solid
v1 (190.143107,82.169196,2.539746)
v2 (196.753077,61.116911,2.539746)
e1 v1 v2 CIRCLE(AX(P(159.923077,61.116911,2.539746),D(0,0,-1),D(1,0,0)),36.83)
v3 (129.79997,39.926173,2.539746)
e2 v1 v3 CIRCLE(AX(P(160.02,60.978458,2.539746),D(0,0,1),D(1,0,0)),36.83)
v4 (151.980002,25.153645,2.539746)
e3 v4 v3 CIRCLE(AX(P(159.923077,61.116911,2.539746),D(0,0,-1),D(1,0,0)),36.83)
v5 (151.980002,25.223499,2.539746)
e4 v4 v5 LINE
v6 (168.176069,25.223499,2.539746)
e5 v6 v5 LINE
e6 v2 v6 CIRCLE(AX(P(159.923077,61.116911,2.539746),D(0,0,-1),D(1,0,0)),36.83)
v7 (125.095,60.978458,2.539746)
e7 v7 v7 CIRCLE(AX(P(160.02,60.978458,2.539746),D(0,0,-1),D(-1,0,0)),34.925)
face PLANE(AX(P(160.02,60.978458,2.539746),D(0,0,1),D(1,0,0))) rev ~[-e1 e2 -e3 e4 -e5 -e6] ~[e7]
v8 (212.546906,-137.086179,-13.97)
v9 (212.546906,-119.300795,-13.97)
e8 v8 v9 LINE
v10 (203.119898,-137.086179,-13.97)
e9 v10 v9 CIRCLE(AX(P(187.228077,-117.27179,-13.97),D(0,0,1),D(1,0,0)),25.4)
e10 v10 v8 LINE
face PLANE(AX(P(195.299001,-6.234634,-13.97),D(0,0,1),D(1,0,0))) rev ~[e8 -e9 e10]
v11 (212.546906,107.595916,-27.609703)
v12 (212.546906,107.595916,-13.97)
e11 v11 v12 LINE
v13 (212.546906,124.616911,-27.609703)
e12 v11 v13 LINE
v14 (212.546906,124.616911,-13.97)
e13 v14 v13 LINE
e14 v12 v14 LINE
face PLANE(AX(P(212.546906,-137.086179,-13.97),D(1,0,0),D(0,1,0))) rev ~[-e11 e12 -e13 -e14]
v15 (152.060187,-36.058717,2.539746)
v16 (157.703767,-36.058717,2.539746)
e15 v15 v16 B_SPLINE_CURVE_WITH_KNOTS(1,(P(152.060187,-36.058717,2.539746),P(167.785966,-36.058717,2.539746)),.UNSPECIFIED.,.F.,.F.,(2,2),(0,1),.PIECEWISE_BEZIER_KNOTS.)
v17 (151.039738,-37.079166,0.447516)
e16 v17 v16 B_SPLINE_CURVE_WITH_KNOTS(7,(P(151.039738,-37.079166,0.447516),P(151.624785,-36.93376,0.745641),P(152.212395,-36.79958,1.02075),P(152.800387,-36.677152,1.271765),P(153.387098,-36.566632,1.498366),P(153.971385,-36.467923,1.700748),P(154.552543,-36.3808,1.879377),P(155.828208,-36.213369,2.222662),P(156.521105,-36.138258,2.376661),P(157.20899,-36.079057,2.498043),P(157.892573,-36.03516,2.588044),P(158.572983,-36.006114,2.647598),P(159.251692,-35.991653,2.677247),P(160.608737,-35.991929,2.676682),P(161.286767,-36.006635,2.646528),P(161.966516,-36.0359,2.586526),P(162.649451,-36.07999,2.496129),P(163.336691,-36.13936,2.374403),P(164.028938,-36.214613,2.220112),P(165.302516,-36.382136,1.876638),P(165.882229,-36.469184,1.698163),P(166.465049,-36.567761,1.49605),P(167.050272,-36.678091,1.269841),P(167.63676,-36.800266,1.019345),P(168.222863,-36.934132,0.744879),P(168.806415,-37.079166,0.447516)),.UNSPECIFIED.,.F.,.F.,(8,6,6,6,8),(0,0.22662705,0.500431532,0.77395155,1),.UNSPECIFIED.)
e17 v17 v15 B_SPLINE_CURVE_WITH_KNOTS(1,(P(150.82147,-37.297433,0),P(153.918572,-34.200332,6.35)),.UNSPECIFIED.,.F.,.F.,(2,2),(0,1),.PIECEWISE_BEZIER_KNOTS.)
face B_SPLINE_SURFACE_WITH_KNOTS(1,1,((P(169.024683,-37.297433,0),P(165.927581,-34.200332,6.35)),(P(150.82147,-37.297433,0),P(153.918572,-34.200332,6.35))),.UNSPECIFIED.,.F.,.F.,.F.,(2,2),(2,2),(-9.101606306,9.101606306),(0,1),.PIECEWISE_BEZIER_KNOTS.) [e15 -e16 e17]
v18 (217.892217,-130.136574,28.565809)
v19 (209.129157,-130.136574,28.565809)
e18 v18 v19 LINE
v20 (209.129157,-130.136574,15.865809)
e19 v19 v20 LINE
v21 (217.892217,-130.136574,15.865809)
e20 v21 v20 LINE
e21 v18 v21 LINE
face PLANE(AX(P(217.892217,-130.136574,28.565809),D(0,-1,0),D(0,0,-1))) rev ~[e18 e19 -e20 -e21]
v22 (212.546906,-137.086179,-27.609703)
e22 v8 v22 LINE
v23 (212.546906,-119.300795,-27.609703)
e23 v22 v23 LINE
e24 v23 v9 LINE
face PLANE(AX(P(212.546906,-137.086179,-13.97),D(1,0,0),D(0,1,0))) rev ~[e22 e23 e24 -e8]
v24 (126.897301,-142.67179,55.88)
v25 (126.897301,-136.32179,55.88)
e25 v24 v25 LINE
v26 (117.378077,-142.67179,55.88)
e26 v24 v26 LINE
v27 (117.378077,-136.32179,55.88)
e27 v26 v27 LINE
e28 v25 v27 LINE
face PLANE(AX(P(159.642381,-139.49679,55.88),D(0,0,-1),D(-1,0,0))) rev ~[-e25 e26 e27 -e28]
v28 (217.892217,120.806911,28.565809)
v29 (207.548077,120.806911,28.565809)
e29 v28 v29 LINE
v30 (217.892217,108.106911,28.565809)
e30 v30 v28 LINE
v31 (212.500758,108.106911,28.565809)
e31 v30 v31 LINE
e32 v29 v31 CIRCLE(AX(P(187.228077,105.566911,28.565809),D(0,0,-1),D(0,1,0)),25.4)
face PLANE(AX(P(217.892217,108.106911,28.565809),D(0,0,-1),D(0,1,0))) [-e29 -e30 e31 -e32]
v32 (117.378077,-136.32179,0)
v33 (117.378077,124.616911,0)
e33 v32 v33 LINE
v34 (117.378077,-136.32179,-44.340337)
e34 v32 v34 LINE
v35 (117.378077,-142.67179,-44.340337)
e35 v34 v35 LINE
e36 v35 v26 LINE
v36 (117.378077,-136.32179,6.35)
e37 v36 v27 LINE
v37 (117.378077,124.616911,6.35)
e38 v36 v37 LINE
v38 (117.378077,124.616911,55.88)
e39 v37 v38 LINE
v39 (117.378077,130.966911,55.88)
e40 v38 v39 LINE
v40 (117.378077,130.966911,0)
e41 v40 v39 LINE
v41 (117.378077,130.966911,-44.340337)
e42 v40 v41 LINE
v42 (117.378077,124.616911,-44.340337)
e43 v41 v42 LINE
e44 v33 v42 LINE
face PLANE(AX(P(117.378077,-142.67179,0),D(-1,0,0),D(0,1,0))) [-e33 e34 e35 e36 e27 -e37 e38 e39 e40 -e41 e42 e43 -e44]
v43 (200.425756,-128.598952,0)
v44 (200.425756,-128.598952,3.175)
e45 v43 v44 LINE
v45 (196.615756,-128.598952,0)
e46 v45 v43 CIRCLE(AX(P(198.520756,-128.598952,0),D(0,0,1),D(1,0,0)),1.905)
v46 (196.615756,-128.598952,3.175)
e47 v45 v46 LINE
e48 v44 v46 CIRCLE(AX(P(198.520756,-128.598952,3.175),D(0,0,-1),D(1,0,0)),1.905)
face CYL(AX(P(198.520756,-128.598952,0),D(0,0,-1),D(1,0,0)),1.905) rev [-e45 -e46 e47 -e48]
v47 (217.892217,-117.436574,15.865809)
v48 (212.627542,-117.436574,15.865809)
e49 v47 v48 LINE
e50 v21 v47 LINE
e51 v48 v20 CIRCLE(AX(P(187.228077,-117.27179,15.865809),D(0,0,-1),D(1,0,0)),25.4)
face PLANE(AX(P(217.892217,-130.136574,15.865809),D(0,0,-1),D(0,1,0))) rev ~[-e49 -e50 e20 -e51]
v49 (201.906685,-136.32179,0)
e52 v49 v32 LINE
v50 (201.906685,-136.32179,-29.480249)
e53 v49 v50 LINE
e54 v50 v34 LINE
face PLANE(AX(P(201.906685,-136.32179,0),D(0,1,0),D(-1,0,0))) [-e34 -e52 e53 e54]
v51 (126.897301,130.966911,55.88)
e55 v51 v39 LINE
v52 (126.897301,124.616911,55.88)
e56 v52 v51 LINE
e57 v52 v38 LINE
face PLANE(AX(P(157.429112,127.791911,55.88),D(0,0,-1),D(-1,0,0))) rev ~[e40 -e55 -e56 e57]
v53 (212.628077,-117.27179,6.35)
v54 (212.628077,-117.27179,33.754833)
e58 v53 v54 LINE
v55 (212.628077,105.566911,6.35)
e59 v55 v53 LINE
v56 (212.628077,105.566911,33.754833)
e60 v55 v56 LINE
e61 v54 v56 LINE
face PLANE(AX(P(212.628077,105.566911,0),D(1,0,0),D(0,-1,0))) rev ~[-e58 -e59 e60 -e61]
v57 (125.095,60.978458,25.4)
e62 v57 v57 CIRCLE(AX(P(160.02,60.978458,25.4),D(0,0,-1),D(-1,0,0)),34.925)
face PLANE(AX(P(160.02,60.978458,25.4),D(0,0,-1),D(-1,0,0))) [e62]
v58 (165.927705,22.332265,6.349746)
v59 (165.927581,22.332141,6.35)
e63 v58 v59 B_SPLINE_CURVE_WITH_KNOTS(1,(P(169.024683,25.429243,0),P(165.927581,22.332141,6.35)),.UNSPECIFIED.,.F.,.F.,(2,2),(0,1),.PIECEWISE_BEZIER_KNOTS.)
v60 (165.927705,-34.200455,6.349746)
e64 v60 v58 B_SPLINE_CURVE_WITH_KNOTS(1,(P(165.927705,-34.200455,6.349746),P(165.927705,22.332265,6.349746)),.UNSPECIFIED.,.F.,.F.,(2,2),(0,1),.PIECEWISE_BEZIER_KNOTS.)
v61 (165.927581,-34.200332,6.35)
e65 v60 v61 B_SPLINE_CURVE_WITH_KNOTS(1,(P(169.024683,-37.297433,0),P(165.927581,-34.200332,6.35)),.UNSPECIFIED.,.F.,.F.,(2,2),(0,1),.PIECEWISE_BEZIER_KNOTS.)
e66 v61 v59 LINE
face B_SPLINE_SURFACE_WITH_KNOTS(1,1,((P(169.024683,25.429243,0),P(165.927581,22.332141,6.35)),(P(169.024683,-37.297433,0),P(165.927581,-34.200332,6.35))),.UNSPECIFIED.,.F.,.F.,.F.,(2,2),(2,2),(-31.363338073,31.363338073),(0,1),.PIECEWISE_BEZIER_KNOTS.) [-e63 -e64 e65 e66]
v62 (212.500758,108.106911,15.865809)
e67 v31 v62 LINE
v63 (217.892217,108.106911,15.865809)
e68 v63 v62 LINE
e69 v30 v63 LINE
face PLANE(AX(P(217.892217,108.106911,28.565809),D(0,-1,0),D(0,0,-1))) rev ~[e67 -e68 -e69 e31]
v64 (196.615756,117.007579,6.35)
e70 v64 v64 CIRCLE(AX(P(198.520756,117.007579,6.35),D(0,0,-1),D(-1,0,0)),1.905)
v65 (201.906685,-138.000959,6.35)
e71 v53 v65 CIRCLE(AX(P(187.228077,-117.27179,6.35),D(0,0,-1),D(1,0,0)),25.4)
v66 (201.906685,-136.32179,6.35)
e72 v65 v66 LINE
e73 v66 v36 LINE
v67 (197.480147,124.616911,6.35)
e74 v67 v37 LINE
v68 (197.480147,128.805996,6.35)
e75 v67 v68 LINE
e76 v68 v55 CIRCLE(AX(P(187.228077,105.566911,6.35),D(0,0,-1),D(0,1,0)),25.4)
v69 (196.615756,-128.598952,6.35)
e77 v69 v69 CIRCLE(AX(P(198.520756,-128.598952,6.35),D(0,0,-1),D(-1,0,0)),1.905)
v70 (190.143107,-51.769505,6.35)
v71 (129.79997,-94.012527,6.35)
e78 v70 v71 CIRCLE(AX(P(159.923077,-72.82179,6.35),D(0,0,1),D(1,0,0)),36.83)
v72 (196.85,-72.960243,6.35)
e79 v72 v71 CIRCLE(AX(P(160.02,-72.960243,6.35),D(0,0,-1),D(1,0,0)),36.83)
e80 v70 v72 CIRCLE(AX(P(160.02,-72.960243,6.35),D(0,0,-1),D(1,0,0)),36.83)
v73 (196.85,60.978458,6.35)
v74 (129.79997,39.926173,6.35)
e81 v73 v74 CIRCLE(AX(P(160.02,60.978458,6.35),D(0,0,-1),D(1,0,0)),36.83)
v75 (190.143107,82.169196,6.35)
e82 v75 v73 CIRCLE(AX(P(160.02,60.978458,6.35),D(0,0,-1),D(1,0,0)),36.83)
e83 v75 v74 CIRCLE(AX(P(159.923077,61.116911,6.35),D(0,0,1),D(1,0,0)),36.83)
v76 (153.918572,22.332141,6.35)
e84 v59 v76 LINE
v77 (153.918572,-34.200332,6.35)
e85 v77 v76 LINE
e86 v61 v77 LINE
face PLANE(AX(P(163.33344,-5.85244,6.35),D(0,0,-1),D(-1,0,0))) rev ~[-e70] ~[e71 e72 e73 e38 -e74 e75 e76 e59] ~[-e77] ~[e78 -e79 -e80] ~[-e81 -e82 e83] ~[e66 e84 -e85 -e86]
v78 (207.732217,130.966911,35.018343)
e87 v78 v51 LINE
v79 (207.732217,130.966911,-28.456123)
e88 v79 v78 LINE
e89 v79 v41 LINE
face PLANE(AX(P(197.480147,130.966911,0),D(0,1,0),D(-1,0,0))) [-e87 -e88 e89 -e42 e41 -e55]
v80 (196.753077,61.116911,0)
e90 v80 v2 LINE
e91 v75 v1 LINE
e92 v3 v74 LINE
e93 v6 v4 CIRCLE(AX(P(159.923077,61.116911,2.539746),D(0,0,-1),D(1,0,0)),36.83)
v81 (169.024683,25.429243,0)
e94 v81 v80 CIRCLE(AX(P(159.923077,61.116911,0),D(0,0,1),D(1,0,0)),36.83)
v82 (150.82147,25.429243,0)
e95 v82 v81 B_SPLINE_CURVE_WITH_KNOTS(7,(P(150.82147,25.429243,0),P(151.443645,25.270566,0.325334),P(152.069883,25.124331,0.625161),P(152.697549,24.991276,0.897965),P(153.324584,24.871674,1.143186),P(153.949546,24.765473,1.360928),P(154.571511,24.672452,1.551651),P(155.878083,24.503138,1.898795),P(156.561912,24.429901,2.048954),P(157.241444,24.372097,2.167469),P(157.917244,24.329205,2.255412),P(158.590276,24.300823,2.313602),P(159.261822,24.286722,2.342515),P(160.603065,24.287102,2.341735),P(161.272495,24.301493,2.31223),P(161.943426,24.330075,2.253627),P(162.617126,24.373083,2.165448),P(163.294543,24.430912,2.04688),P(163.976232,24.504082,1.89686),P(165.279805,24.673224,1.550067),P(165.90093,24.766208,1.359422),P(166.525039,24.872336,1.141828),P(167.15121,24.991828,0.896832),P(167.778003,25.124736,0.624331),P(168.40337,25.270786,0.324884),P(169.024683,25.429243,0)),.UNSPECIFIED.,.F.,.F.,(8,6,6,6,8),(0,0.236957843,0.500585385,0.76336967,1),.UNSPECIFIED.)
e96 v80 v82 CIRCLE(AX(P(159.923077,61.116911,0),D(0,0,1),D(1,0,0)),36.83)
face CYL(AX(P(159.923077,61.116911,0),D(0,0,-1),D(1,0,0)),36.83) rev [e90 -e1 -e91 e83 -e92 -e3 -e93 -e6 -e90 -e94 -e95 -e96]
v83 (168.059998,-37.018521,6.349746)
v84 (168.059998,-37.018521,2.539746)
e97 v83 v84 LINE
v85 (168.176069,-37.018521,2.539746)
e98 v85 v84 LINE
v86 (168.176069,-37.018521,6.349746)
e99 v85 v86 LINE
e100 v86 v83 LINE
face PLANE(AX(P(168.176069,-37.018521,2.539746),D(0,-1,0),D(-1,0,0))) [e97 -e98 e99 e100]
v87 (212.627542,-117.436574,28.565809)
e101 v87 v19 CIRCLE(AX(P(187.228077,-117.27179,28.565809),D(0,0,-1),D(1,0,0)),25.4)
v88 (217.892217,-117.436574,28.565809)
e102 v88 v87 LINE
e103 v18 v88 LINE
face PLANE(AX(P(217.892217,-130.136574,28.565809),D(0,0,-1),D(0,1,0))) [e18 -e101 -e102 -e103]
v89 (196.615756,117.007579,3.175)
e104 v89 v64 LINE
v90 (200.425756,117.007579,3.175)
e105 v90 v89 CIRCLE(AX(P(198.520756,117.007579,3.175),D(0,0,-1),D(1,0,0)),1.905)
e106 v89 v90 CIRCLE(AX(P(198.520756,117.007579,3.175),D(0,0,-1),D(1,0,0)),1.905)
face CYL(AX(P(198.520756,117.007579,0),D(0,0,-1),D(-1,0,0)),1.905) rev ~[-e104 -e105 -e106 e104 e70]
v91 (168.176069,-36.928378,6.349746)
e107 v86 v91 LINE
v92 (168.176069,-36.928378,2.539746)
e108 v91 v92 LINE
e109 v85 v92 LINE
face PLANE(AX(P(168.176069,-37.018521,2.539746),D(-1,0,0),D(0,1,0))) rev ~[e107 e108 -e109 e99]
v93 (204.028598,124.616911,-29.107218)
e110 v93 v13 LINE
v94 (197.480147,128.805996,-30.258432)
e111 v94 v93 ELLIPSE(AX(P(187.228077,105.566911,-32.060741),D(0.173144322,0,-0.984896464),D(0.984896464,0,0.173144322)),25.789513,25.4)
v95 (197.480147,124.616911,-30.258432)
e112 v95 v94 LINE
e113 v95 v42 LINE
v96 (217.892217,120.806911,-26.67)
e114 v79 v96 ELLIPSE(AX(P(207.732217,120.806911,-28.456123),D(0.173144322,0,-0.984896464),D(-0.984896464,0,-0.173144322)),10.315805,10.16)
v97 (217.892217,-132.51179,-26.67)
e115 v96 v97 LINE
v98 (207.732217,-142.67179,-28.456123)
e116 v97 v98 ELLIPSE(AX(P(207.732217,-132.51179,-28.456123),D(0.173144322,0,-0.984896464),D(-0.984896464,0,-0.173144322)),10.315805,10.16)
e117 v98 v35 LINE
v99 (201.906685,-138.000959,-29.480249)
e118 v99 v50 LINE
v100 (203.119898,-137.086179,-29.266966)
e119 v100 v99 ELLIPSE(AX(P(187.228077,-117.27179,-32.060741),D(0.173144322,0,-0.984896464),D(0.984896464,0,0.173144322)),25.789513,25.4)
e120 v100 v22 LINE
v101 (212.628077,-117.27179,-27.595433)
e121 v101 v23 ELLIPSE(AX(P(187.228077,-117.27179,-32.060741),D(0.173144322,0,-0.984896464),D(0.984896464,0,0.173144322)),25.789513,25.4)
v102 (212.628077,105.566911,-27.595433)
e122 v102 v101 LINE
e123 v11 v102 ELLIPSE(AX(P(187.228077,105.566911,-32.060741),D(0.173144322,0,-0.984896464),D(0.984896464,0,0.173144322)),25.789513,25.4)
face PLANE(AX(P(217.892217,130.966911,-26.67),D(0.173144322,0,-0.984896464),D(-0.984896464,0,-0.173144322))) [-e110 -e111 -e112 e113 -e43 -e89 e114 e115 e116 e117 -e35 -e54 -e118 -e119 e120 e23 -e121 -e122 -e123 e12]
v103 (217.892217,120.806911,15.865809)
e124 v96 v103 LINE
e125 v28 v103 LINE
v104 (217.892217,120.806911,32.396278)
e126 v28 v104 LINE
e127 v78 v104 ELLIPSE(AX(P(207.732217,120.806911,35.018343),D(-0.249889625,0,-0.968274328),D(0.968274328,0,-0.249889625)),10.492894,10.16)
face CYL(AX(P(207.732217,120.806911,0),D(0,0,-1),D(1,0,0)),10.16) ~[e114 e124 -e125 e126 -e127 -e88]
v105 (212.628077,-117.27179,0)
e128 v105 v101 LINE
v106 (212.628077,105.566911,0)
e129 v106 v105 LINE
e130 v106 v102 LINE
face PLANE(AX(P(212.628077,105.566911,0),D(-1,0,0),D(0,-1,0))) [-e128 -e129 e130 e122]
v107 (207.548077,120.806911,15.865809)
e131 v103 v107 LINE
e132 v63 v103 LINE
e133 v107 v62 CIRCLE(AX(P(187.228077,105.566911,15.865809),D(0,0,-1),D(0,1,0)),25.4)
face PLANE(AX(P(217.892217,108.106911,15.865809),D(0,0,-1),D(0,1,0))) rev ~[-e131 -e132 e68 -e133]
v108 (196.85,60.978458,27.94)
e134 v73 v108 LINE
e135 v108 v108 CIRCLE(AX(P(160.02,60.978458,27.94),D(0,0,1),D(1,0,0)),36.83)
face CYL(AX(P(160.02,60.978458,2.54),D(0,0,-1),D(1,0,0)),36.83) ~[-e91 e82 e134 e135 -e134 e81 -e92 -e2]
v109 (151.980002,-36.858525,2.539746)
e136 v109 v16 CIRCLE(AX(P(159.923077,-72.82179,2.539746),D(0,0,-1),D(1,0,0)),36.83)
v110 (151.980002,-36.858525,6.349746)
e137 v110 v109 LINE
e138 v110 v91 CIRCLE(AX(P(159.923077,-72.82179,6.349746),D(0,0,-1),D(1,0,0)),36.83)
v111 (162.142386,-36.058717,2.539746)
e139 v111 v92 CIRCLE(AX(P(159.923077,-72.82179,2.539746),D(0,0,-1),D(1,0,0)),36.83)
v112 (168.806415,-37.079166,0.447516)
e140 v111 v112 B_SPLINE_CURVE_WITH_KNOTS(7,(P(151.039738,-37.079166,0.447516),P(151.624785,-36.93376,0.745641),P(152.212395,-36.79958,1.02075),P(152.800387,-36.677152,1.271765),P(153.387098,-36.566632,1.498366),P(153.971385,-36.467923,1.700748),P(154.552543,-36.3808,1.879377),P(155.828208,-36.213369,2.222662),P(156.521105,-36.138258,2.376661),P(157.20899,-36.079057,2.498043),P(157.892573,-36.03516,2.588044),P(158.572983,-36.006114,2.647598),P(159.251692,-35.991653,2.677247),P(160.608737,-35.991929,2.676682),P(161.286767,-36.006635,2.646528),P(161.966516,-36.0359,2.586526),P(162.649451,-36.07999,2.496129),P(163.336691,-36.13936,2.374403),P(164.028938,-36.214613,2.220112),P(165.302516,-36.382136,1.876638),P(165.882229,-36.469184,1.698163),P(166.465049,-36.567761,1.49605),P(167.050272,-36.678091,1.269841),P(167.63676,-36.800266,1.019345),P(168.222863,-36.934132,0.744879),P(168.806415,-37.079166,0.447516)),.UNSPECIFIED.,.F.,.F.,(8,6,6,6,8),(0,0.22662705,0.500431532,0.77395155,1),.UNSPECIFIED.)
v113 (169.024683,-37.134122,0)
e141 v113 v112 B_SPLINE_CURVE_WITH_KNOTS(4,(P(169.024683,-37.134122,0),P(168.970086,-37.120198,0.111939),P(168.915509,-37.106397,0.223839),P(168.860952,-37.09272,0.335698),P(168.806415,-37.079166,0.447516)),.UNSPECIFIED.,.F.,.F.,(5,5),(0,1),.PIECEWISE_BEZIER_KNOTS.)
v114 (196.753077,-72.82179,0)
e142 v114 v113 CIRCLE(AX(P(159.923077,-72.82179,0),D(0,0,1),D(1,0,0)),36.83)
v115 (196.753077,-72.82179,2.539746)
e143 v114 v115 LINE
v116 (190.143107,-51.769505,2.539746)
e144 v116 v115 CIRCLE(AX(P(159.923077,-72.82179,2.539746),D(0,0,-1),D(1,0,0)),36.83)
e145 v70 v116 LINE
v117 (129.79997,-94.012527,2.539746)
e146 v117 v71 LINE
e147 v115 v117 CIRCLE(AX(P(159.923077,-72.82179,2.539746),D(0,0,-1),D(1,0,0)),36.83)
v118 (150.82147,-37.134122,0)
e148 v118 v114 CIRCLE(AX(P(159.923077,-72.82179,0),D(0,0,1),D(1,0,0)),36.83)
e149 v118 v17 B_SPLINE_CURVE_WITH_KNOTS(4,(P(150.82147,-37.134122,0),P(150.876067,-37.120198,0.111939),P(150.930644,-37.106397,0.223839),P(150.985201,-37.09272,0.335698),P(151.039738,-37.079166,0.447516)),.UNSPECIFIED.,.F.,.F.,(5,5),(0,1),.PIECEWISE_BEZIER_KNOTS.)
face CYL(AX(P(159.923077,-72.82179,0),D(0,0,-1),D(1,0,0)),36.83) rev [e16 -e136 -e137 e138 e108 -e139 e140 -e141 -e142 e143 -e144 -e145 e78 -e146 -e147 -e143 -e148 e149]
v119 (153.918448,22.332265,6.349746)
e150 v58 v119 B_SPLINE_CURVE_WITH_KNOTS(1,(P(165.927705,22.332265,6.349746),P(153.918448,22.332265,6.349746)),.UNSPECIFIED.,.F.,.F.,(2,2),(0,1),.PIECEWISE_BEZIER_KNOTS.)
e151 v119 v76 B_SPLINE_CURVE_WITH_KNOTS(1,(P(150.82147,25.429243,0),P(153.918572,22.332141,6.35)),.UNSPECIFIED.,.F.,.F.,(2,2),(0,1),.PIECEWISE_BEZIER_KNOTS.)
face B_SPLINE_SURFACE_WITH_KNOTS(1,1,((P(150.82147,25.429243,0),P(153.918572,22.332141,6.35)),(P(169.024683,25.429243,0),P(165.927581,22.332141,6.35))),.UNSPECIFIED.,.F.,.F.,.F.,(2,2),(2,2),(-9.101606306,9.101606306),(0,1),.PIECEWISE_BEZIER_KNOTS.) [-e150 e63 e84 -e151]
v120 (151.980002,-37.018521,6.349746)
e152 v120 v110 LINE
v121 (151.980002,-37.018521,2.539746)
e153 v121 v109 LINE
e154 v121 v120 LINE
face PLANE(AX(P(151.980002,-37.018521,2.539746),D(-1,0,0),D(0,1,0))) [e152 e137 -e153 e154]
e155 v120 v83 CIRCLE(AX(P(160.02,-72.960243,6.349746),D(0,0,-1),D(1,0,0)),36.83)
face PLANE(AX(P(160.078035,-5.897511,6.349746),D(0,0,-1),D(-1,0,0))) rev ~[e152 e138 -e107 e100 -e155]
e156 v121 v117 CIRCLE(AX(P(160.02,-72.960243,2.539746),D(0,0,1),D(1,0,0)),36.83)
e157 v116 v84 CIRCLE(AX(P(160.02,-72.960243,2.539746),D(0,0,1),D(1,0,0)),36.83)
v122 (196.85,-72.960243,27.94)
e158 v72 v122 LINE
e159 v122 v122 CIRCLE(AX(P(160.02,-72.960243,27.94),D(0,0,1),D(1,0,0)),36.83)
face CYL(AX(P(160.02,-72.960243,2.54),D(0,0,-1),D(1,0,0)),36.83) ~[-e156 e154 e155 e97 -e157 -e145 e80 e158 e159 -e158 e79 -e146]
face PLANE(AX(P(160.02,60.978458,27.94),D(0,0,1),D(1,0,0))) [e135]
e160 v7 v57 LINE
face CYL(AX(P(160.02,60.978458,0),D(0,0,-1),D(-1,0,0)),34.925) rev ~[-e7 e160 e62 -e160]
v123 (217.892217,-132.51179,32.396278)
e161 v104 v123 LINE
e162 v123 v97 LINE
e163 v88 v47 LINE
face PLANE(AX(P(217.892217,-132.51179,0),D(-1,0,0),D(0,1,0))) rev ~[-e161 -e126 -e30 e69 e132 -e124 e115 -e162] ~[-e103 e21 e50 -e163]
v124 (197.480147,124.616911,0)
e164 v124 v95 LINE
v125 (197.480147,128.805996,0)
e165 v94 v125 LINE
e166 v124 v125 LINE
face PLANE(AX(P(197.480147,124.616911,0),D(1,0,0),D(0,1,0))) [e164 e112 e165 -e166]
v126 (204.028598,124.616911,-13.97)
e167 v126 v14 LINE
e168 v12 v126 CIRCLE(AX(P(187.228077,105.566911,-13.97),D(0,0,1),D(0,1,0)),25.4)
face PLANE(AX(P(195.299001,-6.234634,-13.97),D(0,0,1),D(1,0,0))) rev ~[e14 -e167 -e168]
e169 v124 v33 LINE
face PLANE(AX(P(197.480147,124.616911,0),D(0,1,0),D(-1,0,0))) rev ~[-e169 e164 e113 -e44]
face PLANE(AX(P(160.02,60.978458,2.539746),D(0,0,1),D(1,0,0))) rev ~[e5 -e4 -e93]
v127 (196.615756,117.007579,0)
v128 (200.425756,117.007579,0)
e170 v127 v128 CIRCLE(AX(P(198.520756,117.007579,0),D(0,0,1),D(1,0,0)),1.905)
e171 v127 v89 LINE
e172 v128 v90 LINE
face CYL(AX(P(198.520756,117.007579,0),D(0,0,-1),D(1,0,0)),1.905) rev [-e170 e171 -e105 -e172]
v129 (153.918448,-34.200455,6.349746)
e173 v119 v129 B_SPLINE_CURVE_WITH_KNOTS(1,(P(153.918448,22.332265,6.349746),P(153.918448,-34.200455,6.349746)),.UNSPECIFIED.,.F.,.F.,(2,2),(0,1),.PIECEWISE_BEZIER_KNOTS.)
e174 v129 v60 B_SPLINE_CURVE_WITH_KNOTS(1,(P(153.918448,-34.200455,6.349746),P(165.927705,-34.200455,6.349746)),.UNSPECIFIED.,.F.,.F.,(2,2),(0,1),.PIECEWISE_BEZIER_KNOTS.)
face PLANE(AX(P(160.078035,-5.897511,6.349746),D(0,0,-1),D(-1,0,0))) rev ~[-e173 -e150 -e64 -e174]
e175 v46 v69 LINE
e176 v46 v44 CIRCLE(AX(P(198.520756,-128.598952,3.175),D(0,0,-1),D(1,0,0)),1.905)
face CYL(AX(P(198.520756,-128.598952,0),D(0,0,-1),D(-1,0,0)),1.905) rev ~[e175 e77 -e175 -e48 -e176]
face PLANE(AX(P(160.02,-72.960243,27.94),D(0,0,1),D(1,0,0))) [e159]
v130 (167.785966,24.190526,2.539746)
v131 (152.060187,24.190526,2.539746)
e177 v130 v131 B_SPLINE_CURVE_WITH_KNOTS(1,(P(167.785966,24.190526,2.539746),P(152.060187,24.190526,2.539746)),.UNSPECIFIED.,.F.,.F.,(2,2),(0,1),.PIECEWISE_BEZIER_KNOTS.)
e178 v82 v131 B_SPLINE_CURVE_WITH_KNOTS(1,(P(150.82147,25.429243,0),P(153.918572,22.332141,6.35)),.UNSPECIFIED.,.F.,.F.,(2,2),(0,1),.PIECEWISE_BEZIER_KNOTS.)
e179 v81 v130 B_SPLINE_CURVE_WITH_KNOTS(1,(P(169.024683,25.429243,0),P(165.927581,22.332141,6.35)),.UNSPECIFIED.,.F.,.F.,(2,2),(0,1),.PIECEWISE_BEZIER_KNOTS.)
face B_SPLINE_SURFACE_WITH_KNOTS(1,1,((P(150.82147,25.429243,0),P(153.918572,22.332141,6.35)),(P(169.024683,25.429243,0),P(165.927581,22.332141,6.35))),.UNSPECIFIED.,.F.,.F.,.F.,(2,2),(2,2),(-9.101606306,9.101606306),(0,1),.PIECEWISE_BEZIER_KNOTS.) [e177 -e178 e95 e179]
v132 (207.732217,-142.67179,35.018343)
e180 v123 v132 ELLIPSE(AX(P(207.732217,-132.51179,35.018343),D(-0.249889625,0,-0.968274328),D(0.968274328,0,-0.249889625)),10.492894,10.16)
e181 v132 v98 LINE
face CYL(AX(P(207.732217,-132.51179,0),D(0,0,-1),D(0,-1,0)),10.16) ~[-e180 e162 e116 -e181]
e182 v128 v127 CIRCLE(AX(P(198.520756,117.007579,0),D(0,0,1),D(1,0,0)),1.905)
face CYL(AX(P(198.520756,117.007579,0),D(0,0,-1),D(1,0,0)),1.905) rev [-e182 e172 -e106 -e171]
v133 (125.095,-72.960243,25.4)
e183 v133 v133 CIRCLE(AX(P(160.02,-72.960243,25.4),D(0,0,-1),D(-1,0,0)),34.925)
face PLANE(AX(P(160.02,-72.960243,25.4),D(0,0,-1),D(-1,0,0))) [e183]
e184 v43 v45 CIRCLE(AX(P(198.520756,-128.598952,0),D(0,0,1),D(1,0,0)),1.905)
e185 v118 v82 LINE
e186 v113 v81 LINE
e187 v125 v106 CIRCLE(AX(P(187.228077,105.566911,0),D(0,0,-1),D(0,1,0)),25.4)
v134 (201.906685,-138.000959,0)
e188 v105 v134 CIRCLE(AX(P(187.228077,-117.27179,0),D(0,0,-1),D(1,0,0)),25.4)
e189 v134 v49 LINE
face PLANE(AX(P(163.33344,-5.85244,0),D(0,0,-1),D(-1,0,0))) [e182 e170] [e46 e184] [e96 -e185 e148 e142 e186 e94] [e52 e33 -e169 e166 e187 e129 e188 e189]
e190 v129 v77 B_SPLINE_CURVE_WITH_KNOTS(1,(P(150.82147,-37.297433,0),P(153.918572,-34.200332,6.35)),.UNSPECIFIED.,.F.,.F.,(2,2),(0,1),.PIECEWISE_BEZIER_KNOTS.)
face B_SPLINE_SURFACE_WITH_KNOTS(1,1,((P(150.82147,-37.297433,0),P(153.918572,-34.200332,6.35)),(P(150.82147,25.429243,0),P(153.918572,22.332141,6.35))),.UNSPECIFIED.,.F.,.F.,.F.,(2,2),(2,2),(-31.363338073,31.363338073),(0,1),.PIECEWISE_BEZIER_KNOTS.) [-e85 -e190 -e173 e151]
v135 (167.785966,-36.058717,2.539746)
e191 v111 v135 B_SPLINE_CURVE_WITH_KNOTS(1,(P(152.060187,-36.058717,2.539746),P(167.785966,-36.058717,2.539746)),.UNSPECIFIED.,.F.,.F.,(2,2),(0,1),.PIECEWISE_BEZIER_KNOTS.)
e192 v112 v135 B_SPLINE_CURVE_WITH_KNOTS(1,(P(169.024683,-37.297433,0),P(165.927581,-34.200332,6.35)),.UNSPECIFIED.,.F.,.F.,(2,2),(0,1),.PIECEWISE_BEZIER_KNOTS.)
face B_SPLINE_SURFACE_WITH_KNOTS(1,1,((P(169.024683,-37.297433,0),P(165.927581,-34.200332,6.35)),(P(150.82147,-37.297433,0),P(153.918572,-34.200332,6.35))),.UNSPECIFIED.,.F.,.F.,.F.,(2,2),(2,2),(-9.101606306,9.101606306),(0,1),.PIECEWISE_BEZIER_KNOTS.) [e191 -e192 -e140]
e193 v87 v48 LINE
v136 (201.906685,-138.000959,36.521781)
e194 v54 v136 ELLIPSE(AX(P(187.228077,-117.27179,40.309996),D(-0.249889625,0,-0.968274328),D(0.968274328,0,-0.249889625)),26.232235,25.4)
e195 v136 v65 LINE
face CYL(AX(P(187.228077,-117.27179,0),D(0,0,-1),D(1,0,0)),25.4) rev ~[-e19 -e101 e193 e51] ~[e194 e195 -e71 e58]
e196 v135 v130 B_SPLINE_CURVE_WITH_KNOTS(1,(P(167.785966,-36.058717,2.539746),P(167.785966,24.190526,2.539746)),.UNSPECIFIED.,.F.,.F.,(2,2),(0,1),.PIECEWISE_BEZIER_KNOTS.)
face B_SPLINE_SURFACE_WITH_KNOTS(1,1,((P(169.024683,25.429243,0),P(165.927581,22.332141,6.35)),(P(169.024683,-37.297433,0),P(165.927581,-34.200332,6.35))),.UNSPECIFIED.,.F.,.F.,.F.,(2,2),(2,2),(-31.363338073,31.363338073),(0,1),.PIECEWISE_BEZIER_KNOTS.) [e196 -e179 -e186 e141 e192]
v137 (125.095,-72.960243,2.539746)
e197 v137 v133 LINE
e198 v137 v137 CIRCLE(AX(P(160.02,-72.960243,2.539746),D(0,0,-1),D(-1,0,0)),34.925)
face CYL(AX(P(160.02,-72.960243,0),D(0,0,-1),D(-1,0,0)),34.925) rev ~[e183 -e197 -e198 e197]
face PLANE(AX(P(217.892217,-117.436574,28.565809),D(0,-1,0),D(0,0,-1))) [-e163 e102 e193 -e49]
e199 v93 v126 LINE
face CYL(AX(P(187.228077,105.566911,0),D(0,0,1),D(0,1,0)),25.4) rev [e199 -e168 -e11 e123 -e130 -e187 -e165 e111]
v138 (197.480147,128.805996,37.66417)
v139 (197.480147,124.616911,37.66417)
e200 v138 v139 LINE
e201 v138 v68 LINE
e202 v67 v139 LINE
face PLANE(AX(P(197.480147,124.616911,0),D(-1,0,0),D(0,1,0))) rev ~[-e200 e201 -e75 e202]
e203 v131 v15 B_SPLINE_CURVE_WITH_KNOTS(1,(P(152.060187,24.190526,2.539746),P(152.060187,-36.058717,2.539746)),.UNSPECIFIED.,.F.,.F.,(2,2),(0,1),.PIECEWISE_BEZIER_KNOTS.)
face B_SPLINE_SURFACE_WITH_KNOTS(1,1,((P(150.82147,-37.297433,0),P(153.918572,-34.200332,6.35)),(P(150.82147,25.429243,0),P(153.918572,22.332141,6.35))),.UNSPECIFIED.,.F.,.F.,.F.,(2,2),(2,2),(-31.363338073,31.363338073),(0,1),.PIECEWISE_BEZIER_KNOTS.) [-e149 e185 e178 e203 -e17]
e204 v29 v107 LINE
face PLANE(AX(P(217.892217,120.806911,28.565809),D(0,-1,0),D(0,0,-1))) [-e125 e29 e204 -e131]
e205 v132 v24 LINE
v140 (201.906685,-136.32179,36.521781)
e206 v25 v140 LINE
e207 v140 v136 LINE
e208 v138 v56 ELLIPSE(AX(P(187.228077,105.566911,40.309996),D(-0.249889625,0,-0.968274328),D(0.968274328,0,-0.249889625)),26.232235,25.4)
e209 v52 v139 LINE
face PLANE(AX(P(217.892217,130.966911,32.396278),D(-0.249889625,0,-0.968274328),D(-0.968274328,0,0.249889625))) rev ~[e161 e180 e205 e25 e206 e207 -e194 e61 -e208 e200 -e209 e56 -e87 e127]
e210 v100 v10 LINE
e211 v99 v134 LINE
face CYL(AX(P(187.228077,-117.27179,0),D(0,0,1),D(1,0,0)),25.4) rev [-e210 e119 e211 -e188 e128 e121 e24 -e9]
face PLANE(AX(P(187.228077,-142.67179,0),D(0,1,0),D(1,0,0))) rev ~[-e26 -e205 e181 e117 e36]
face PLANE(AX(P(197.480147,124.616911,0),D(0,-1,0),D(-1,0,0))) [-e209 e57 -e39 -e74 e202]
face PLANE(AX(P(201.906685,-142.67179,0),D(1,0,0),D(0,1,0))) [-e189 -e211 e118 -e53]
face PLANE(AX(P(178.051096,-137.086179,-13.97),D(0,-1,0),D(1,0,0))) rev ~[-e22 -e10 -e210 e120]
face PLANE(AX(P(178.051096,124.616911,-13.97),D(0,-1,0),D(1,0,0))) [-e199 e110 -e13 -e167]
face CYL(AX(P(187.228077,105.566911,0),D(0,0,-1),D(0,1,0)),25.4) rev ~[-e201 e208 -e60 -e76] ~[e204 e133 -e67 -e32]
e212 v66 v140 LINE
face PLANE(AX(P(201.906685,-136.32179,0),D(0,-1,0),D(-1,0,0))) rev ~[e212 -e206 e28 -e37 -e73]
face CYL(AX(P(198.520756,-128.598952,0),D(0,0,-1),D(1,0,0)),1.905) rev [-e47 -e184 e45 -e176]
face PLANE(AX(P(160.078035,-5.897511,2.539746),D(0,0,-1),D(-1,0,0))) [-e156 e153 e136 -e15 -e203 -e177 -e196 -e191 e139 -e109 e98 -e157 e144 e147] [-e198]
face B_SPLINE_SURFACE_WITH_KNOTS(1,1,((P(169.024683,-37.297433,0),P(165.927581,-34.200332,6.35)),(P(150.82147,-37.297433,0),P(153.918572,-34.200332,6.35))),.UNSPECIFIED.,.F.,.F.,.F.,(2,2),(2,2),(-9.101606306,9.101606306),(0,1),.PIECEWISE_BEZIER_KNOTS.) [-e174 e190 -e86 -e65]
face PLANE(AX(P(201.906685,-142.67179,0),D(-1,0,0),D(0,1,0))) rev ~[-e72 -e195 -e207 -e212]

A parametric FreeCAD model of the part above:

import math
import FreeCAD as App
import Part
import Sketcher

V = App.Vector
Q = App.Units.Quantity

doc = App.newDocument("Part")
body = doc.addObject("PartDesign::Body", "Body")

sketch1 = body.newObject("Sketcher::SketchObject", "Sketch")
sketch1.AttachmentSupport = (doc.getObject("XY_Plane"), [""])
sketch1.MapMode = "FlatFace"
sketch1.addGeometry(Part.LineSegment(V(187.2, 131, 0), V(117.4, 131, 0)), False)
sketch1.addGeometry(Part.LineSegment(V(117.4, 131, 0), V(117.4, -142.7, 0)), False)
sketch1.addGeometry(Part.LineSegment(V(117.4, -142.7, 0), V(187.2, -142.7, 0)), False)
sketch1.addGeometry(Part.ArcOfCircle(Part.Circle(V(187.2, -117.3, 0), V(0, 0, 1), 25.4), math.radians(-90), math.radians(0)), False)
sketch1.addGeometry(Part.LineSegment(V(212.6, -117.3, 0), V(212.6, 105.6, 0)), False)
sketch1.addGeometry(Part.ArcOfCircle(Part.Circle(V(187.2, 105.6, 0), V(0, 0, 1), 25.4), math.radians(0), math.radians(90)), False)
sketch1.addGeometry(Part.Circle(V(198.5, -128.6, 0), V(0, 0, 1), 1.9), False)
sketch1.addGeometry(Part.Circle(V(159.9, -72.8, 0), V(0, 0, 1), 36.8), False)
sketch1.addGeometry(Part.Circle(V(198.5, 117, 0), V(0, 0, 1), 1.9), False)
sketch1.addGeometry(Part.Circle(V(159.9, 61.1, 0), V(0, 0, 1), 36.8), False)
sketch1.addConstraint(Sketcher.Constraint("Coincident", 0, 2, 1, 1))
sketch1.addConstraint(Sketcher.Constraint("Coincident", 1, 2, 2, 1))
sketch1.addConstraint(Sketcher.Constraint("Tangent", 2, 2, 3, 1))
sketch1.addConstraint(Sketcher.Constraint("Tangent", 3, 2, 4, 1))
sketch1.addConstraint(Sketcher.Constraint("Tangent", 4, 2, 5, 1))
sketch1.addConstraint(Sketcher.Constraint("Tangent", 5, 2, 0, 1))
sketch1.addConstraint(Sketcher.Constraint("Horizontal", 0))
sketch1.addConstraint(Sketcher.Constraint("Vertical", 1))
sketch1.addConstraint(Sketcher.Constraint("Horizontal", 2))
sketch1.addConstraint(Sketcher.Constraint("Vertical", 4))
sketch1.addConstraint(Sketcher.Constraint("Equal", 3, 5))
sketch1.addConstraint(Sketcher.Constraint("Equal", 6, 8))
sketch1.addConstraint(Sketcher.Constraint("Equal", 7, 9))
sketch1.addConstraint(Sketcher.Constraint("Vertical", 6, 3, 8, 3))
sketch1.addConstraint(Sketcher.Constraint("Vertical", 7, 3, 9, 3))
sketch1.addConstraint(Sketcher.Constraint("Radius", 3, Q("1 in")))
sketch1.addConstraint(Sketcher.Constraint("Diameter", 7, Q("2.9 in")))
sketch1.addConstraint(Sketcher.Constraint("Diameter", 6, Q("0.15 in")))
sketch1.addConstraint(Sketcher.Constraint("DistanceX", 0, 2, 0, 1, Q("2.75 in")))
sketch1.addConstraint(Sketcher.Constraint("DistanceY", 3, 3, 7, 3, Q("1.75 in")))
sketch1.addConstraint(Sketcher.Constraint("DistanceY", 9, 3, 5, 3, Q("1.75 in")))
sketch1.addConstraint(Sketcher.Constraint("DistanceX", 7, 3, 3, 3, Q("1.075 in")))
sketch1.addConstraint(Sketcher.Constraint("DistanceY", 1, 2, 1, 1, 273.638701))
sketch1.addConstraint(Sketcher.Constraint("DistanceY", 3, 3, -1, 1, 117.27179))
sketch1.addConstraint(Sketcher.Constraint("DistanceY", 6, 3, -1, 1, 128.598952))
sketch1.addConstraint(Sketcher.Constraint("DistanceY", -1, 1, 8, 3, 117.007579))
sketch1.addConstraint(Sketcher.Constraint("DistanceX", 3, 3, 6, 3, 11.29268))
sketch1.addConstraint(Sketcher.Constraint("DistanceX", -1, 1, 3, 3, 187.228077))
pad1 = body.newObject("PartDesign::Pad", "Pad")
pad1.Profile = sketch1
pad1.Length = Q("0.25 in")

sketch2 = body.newObject("Sketcher::SketchObject", "Sketch001")
sketch2.AttachmentSupport = (doc.getObject("XY_Plane"), [""])
sketch2.MapMode = "FlatFace"
sketch2.AttachmentOffset = App.Placement(V(0, 0, 0.1 * 25.4), App.Rotation())
sketch2.addGeometry(Part.Circle(V(160, 61, 0), V(0, 0, 1), 37), False)
sketch2.addGeometry(Part.Circle(V(160, -73, 0), V(0, 0, 1), 37), False)
sketch2.addConstraint(Sketcher.Constraint("Equal", 0, 1))
sketch2.addConstraint(Sketcher.Constraint("Vertical", 0, 3, 1, 3))
sketch2.addConstraint(Sketcher.Constraint("Diameter", 0, Q("2.9 in")))
sketch2.addConstraint(Sketcher.Constraint("DistanceX", -1, 1, 0, 3, Q("6.3 in")))
sketch2.addConstraint(Sketcher.Constraint("DistanceY", 1, 3, 0, 3, 133.938701))
sketch2.addConstraint(Sketcher.Constraint("DistanceY", -1, 1, 0, 3, 60.978458))
pad2 = body.newObject("PartDesign::Pad", "Pad001")
pad2.Profile = sketch2
pad2.Type = "TwoLengths"
pad2.Length = Q("1 in")
pad2.Length2 = 0.000254

sketch3 = body.newObject("Sketcher::SketchObject", "Sketch002")
sketch3.AttachmentSupport = (doc.getObject("XY_Plane"), [""])
sketch3.MapMode = "FlatFace"
sketch3.addGeometry(Part.Circle(V(160, 61, 0), V(0, 0, 1), 35), False)
sketch3.addGeometry(Part.Circle(V(160, -73, 0), V(0, 0, 1), 35), False)
sketch3.addConstraint(Sketcher.Constraint("Equal", 0, 1))
sketch3.addConstraint(Sketcher.Constraint("Vertical", 0, 3, 1, 3))
sketch3.addConstraint(Sketcher.Constraint("Diameter", 0, Q("2.75 in")))
sketch3.addConstraint(Sketcher.Constraint("DistanceX", -1, 1, 0, 3, Q("6.3 in")))
sketch3.addConstraint(Sketcher.Constraint("DistanceY", 1, 3, 0, 3, 133.938701))
sketch3.addConstraint(Sketcher.Constraint("DistanceY", -1, 1, 0, 3, 60.978458))
pocket1 = body.newObject("PartDesign::Pocket", "Pocket")
pocket1.Profile = sketch3
pocket1.Length = Q("1 in")
pocket1.Reversed = True

sketch4 = body.newObject("Sketcher::SketchObject", "Sketch003")
sketch4.AttachmentSupport = (doc.getObject("XY_Plane"), [""])
sketch4.MapMode = "FlatFace"
sketch4.AttachmentOffset = App.Placement(V(0, 0, 0.25 * 25.4), App.Rotation())
sketch4.addGeometry(Part.LineSegment(V(187, 131, 0), V(187, 106, 0)), False)
sketch4.addGeometry(Part.LineSegment(V(187, 106, 0), V(213, 106, 0)), False)
sketch4.addGeometry(Part.ArcOfCircle(Part.Circle(V(187, 106, 0), V(0, 0, 1), 25), math.radians(0), math.radians(90)), False)
sketch4.addGeometry(Part.LineSegment(V(213, -117, 0), V(187, -117, 0)), False)
sketch4.addGeometry(Part.LineSegment(V(187, -117, 0), V(187, -143, 0)), False)
sketch4.addGeometry(Part.ArcOfCircle(Part.Circle(V(187, -117, 0), V(0, 0, 1), 25), math.radians(-90), math.radians(0)), False)
sketch4.addConstraint(Sketcher.Constraint("Coincident", 0, 2, 1, 1))
sketch4.addConstraint(Sketcher.Constraint("Coincident", 1, 2, 2, 1))
sketch4.addConstraint(Sketcher.Constraint("Coincident", 2, 2, 0, 1))
sketch4.addConstraint(Sketcher.Constraint("Coincident", 3, 2, 4, 1))
sketch4.addConstraint(Sketcher.Constraint("Coincident", 4, 2, 5, 1))
sketch4.addConstraint(Sketcher.Constraint("Coincident", 5, 2, 3, 1))
sketch4.addConstraint(Sketcher.Constraint("Vertical", 0))
sketch4.addConstraint(Sketcher.Constraint("Horizontal", 1))
sketch4.addConstraint(Sketcher.Constraint("Horizontal", 3))
sketch4.addConstraint(Sketcher.Constraint("Vertical", 4))
sketch4.addConstraint(Sketcher.Constraint("Coincident", 0, 2, 2, 3))
sketch4.addConstraint(Sketcher.Constraint("Coincident", 3, 2, 5, 3))
sketch4.addConstraint(Sketcher.Constraint("Equal", 2, 5))
sketch4.addConstraint(Sketcher.Constraint("Vertical", 2, 3, 5, 3))
sketch4.addConstraint(Sketcher.Constraint("Radius", 2, Q("1 in")))
sketch4.addConstraint(Sketcher.Constraint("DistanceY", 5, 3, 2, 3, 222.838701))
sketch4.addConstraint(Sketcher.Constraint("DistanceY", -1, 1, 2, 3, 105.566911))
sketch4.addConstraint(Sketcher.Constraint("DistanceX", -1, 1, 2, 3, 187.228077))
pad3 = body.newObject("PartDesign::Pad", "Pad002")
pad3.Profile = sketch4
pad3.Length = Q("0.125 in")
pad3.Reversed = True

sketch5 = body.newObject("Sketcher::SketchObject", "Sketch004")
sketch5.AttachmentSupport = (doc.getObject("XY_Plane"), [""])
sketch5.MapMode = "FlatFace"
sketch5.addGeometry(Part.LineSegment(V(218, 121, 0), V(218, -133, 0)), False)
sketch5.addGeometry(Part.ArcOfCircle(Part.Circle(V(208, -133, 0), V(0, 0, 1), 10), math.radians(-90), math.radians(0)), False)
sketch5.addGeometry(Part.LineSegment(V(208, -143, 0), V(187, -143, 0)), False)
sketch5.addGeometry(Part.ArcOfCircle(Part.Circle(V(187, -117, 0), V(0, 0, 1), 25), math.radians(-90), math.radians(0)), False)
sketch5.addGeometry(Part.LineSegment(V(213, -117, 0), V(213, 106, 0)), False)
sketch5.addGeometry(Part.ArcOfCircle(Part.Circle(V(187, 106, 0), V(0, 0, 1), 25), math.radians(0), math.radians(90)), False)
sketch5.addGeometry(Part.LineSegment(V(187, 131, 0), V(208, 131, 0)), False)
sketch5.addGeometry(Part.ArcOfCircle(Part.Circle(V(208, 121, 0), V(0, 0, 1), 10), math.radians(0), math.radians(90)), False)
sketch5.addConstraint(Sketcher.Constraint("Tangent", 0, 2, 1, 2))
sketch5.addConstraint(Sketcher.Constraint("Tangent", 1, 1, 2, 1))
sketch5.addConstraint(Sketcher.Constraint("Tangent", 2, 2, 3, 1))
sketch5.addConstraint(Sketcher.Constraint("Tangent", 3, 2, 4, 1))
sketch5.addConstraint(Sketcher.Constraint("Tangent", 4, 2, 5, 1))
sketch5.addConstraint(Sketcher.Constraint("Tangent", 5, 2, 6, 1))
sketch5.addConstraint(Sketcher.Constraint("Tangent", 6, 2, 7, 2))
sketch5.addConstraint(Sketcher.Constraint("Tangent", 7, 1, 0, 1))
sketch5.addConstraint(Sketcher.Constraint("Vertical", 0))
sketch5.addConstraint(Sketcher.Constraint("Horizontal", 2))
sketch5.addConstraint(Sketcher.Constraint("Vertical", 4))
sketch5.addConstraint(Sketcher.Constraint("Horizontal", 6))
sketch5.addConstraint(Sketcher.Constraint("Equal", 3, 5))
sketch5.addConstraint(Sketcher.Constraint("Equal", 1, 7))
sketch5.addConstraint(Sketcher.Constraint("Radius", 3, Q("1 in")))
sketch5.addConstraint(Sketcher.Constraint("Radius", 1, Q("0.4 in")))
sketch5.addConstraint(Sketcher.Constraint("DistanceY", 0, 2, 0, 1, 253.318701))
sketch5.addConstraint(Sketcher.Constraint("DistanceX", 2, 2, 2, 1, 20.50414))
sketch5.addConstraint(Sketcher.Constraint("DistanceY", 1, 3, -1, 1, 132.51179))
sketch5.addConstraint(Sketcher.Constraint("DistanceX", -1, 1, 1, 3, 207.732217))
pad4 = body.newObject("PartDesign::Pad", "Pad003")
pad4.Profile = sketch5
pad4.Type = "TwoLengths"
pad4.Length = Q("1.5 in")
pad4.Length2 = Q("1.6 in")
pad4.Reversed = True

sketch6 = body.newObject("Sketcher::SketchObject", "Sketch005")
sketch6.AttachmentSupport = (doc.getObject("XY_Plane"), [""])
sketch6.MapMode = "FlatFace"
sketch6.AttachmentOffset = App.Placement(V(0, 0, -0.55 * 25.4), App.Rotation())
sketch6.addGeometry(Part.LineSegment(V(178, 125, 0), V(178, -137, 0)), False)
sketch6.addGeometry(Part.LineSegment(V(178, -137, 0), V(213, -137, 0)), False)
sketch6.addGeometry(Part.LineSegment(V(213, -137, 0), V(213, 125, 0)), False)
sketch6.addGeometry(Part.LineSegment(V(213, 125, 0), V(178, 125, 0)), False)
sketch6.addConstraint(Sketcher.Constraint("Coincident", 0, 2, 1, 1))
sketch6.addConstraint(Sketcher.Constraint("Coincident", 1, 2, 2, 1))
sketch6.addConstraint(Sketcher.Constraint("Coincident", 2, 2, 3, 1))
sketch6.addConstraint(Sketcher.Constraint("Coincident", 3, 2, 0, 1))
sketch6.addConstraint(Sketcher.Constraint("Vertical", 0))
sketch6.addConstraint(Sketcher.Constraint("Horizontal", 1))
sketch6.addConstraint(Sketcher.Constraint("Vertical", 2))
sketch6.addConstraint(Sketcher.Constraint("Horizontal", 3))
sketch6.addConstraint(Sketcher.Constraint("DistanceX", 1, 1, 1, 2, 34.49581))
sketch6.addConstraint(Sketcher.Constraint("DistanceY", 0, 2, 0, 1, 261.70309))
sketch6.addConstraint(Sketcher.Constraint("DistanceY", 0, 2, -1, 1, 137.086179))
sketch6.addConstraint(Sketcher.Constraint("DistanceX", -1, 1, 0, 2, 178.051096))
pocket2 = body.newObject("PartDesign::Pocket", "Pocket001")
pocket2.Profile = sketch6
pocket2.Length = Q("1.9 in")

sketch7 = body.newObject("Sketcher::SketchObject", "Sketch006")
sketch7.AttachmentSupport = (doc.getObject("XY_Plane"), [""])
sketch7.MapMode = "FlatFace"
sketch7.addGeometry(Part.LineSegment(V(197, 131, 0), V(197, 125, 0)), False)
sketch7.addGeometry(Part.LineSegment(V(197, 125, 0), V(117, 125, 0)), False)
sketch7.addGeometry(Part.LineSegment(V(117, 125, 0), V(117, 131, 0)), False)
sketch7.addGeometry(Part.LineSegment(V(117, 131, 0), V(197, 131, 0)), False)
sketch7.addGeometry(Part.LineSegment(V(202, -136, 0), V(202, -143, 0)), False)
sketch7.addGeometry(Part.LineSegment(V(202, -143, 0), V(117, -143, 0)), False)
sketch7.addGeometry(Part.LineSegment(V(117, -143, 0), V(117, -136, 0)), False)
sketch7.addGeometry(Part.LineSegment(V(117, -136, 0), V(202, -136, 0)), False)
sketch7.addConstraint(Sketcher.Constraint("Coincident", 0, 2, 1, 1))
sketch7.addConstraint(Sketcher.Constraint("Coincident", 1, 2, 2, 1))
sketch7.addConstraint(Sketcher.Constraint("Coincident", 2, 2, 3, 1))
sketch7.addConstraint(Sketcher.Constraint("Coincident", 3, 2, 0, 1))
sketch7.addConstraint(Sketcher.Constraint("Coincident", 4, 2, 5, 1))
sketch7.addConstraint(Sketcher.Constraint("Coincident", 5, 2, 6, 1))
sketch7.addConstraint(Sketcher.Constraint("Coincident", 6, 2, 7, 1))
sketch7.addConstraint(Sketcher.Constraint("Coincident", 7, 2, 4, 1))
sketch7.addConstraint(Sketcher.Constraint("Vertical", 0))
sketch7.addConstraint(Sketcher.Constraint("Horizontal", 1))
sketch7.addConstraint(Sketcher.Constraint("Vertical", 2))
sketch7.addConstraint(Sketcher.Constraint("Horizontal", 3))
sketch7.addConstraint(Sketcher.Constraint("Vertical", 4))
sketch7.addConstraint(Sketcher.Constraint("Horizontal", 5))
sketch7.addConstraint(Sketcher.Constraint("Vertical", 6))
sketch7.addConstraint(Sketcher.Constraint("Horizontal", 7))
sketch7.addConstraint(Sketcher.Constraint("Vertical", 2, 2, 5, 2))
sketch7.addConstraint(Sketcher.Constraint("Equal", 2, 4))
sketch7.addConstraint(Sketcher.Constraint("DistanceY", 0, 2, 0, 1, Q("0.25 in")))
sketch7.addConstraint(Sketcher.Constraint("DistanceX", 1, 2, 1, 1, 80.10207))
sketch7.addConstraint(Sketcher.Constraint("DistanceX", 5, 2, 5, 1, 84.528608))
sketch7.addConstraint(Sketcher.Constraint("DistanceY", 4, 2, 0, 2, 267.288701))
sketch7.addConstraint(Sketcher.Constraint("DistanceY", -1, 1, 0, 2, 124.616911))
sketch7.addConstraint(Sketcher.Constraint("DistanceX", -1, 1, 0, 2, 197.480147))
pad5 = body.newObject("PartDesign::Pad", "Pad004")
pad5.Profile = sketch7
pad5.Type = "TwoLengths"
pad5.Length = Q("2.6 in")
pad5.Length2 = Q("2.2 in")
pad5.Reversed = True

sketch8 = body.newObject("Sketcher::SketchObject", "Sketch007")
sketch8.AttachmentSupport = (doc.getObject("XZ_Plane"), [""])
sketch8.MapMode = "FlatFace"
sketch8.AttachmentOffset = App.Placement(V(0, 0, -130.966911), App.Rotation())
sketch8.addGeometry(Part.LineSegment(V(-101, -83, 0), V(218, -27, 0)), False)
sketch8.addGeometry(Part.LineSegment(V(218, -27, 0), V(218, -83, 0)), False)
sketch8.addGeometry(Part.LineSegment(V(218, -83, 0), V(-101, -83, 0)), False)
sketch8.addGeometry(Part.LineSegment(V(218, 32, 0), V(48, 76, 0)), False)
sketch8.addGeometry(Part.LineSegment(V(48, 76, 0), V(218, 67, 0)), False)
sketch8.addGeometry(Part.LineSegment(V(218, 67, 0), V(218, 32, 0)), False)
sketch8.addConstraint(Sketcher.Constraint("Coincident", 0, 2, 1, 1))
sketch8.addConstraint(Sketcher.Constraint("Coincident", 1, 2, 2, 1))
sketch8.addConstraint(Sketcher.Constraint("Coincident", 2, 2, 0, 1))
sketch8.addConstraint(Sketcher.Constraint("Coincident", 3, 2, 4, 1))
sketch8.addConstraint(Sketcher.Constraint("Coincident", 4, 2, 5, 1))
sketch8.addConstraint(Sketcher.Constraint("Coincident", 5, 2, 3, 1))
sketch8.addConstraint(Sketcher.Constraint("Vertical", 1))
sketch8.addConstraint(Sketcher.Constraint("Horizontal", 2))
sketch8.addConstraint(Sketcher.Constraint("Vertical", 5))
sketch8.addConstraint(Sketcher.Constraint("Vertical", 1, 2, 4, 2))
sketch8.addConstraint(Sketcher.Constraint("DistanceY", 0, 2, -1, 1, Q("1.05 in")))
sketch8.addConstraint(Sketcher.Constraint("DistanceX", 2, 2, 2, 1, 318.909099))
sketch8.addConstraint(Sketcher.Constraint("Distance", 4, 170.534002))
sketch8.addConstraint(Sketcher.Constraint("DistanceY", 5, 2, 5, 1, 35.08039))
sketch8.addConstraint(Sketcher.Constraint("DistanceX", -1, 1, 3, 2, 47.5891))
sketch8.addConstraint(Sketcher.Constraint("DistanceY", 1, 2, 1, 1, 56.064065))
sketch8.addConstraint(Sketcher.Constraint("DistanceX", 2, 2, -1, 1, 101.016882))
sketch8.addConstraint(Sketcher.Constraint("DistanceY", -1, 1, 4, 2, 67.476668))
pocket3 = body.newObject("PartDesign::Pocket", "Pocket002")
pocket3.Profile = sketch8
pocket3.Type = "ThroughAll"
pocket3.Reversed = True

sketch9 = body.newObject("Sketcher::SketchObject", "Sketch008")
sketch9.AttachmentSupport = (doc.getObject("YZ_Plane"), [""])
sketch9.MapMode = "FlatFace"
sketch9.AttachmentOffset = App.Placement(V(0, 0, 217.892217), App.Rotation())
sketch9.addGeometry(Part.LineSegment(V(-117, 29, 0), V(-130, 29, 0)), False)
sketch9.addGeometry(Part.LineSegment(V(-130, 29, 0), V(-130, 16, 0)), False)
sketch9.addGeometry(Part.LineSegment(V(-130, 16, 0), V(-117, 16, 0)), False)
sketch9.addGeometry(Part.LineSegment(V(-117, 16, 0), V(-117, 29, 0)), False)
sketch9.addGeometry(Part.LineSegment(V(121, 29, 0), V(108, 29, 0)), False)
sketch9.addGeometry(Part.LineSegment(V(108, 29, 0), V(108, 16, 0)), False)
sketch9.addGeometry(Part.LineSegment(V(108, 16, 0), V(121, 16, 0)), False)
sketch9.addGeometry(Part.LineSegment(V(121, 16, 0), V(121, 29, 0)), False)
sketch9.addConstraint(Sketcher.Constraint("Coincident", 0, 2, 1, 1))
sketch9.addConstraint(Sketcher.Constraint("Coincident", 1, 2, 2, 1))
sketch9.addConstraint(Sketcher.Constraint("Coincident", 2, 2, 3, 1))
sketch9.addConstraint(Sketcher.Constraint("Coincident", 3, 2, 0, 1))
sketch9.addConstraint(Sketcher.Constraint("Coincident", 4, 2, 5, 1))
sketch9.addConstraint(Sketcher.Constraint("Coincident", 5, 2, 6, 1))
sketch9.addConstraint(Sketcher.Constraint("Coincident", 6, 2, 7, 1))
sketch9.addConstraint(Sketcher.Constraint("Coincident", 7, 2, 4, 1))
sketch9.addConstraint(Sketcher.Constraint("Horizontal", 0))
sketch9.addConstraint(Sketcher.Constraint("Vertical", 1))
sketch9.addConstraint(Sketcher.Constraint("Horizontal", 2))
sketch9.addConstraint(Sketcher.Constraint("Vertical", 3))
sketch9.addConstraint(Sketcher.Constraint("Horizontal", 4))
sketch9.addConstraint(Sketcher.Constraint("Vertical", 5))
sketch9.addConstraint(Sketcher.Constraint("Horizontal", 6))
sketch9.addConstraint(Sketcher.Constraint("Vertical", 7))
sketch9.addConstraint(Sketcher.Constraint("Horizontal", 3, 2, 4, 2))
sketch9.addConstraint(Sketcher.Constraint("Horizontal", 2, 2, 5, 2))
sketch9.addConstraint(Sketcher.Constraint("Equal", 2, 4))
sketch9.addConstraint(Sketcher.Constraint("Equal", 6, 1))
sketch9.addConstraint(Sketcher.Constraint("DistanceX", 0, 2, 0, 1, Q("0.5 in")))
sketch9.addConstraint(Sketcher.Constraint("DistanceY", -1, 1, 0, 2, 28.565809))
sketch9.addConstraint(Sketcher.Constraint("DistanceX", -1, 1, 4, 2, 108.106911))
sketch9.addConstraint(Sketcher.Constraint("DistanceX", 0, 2, -1, 1, 130.136574))
pocket4 = body.newObject("PartDesign::Pocket", "Pocket003")
pocket4.Profile = sketch9
pocket4.Length = Q("1.8 in")

sketch10 = body.newObject("Sketcher::SketchObject", "Sketch009")
sketch10.AttachmentSupport = (doc.getObject("XY_Plane"), [""])
sketch10.MapMode = "FlatFace"
sketch10.addGeometry(Part.LineSegment(V(169, 25, 0), V(169, -37, 0)), False)
sketch10.addGeometry(Part.LineSegment(V(169, -37, 0), V(151, -37, 0)), False)
sketch10.addGeometry(Part.LineSegment(V(151, -37, 0), V(151, 25, 0)), False)
sketch10.addGeometry(Part.LineSegment(V(151, 25, 0), V(169, 25, 0)), False)
sketch10.addConstraint(Sketcher.Constraint("Coincident", 0, 2, 1, 1))
sketch10.addConstraint(Sketcher.Constraint("Coincident", 1, 2, 2, 1))
sketch10.addConstraint(Sketcher.Constraint("Coincident", 2, 2, 3, 1))
sketch10.addConstraint(Sketcher.Constraint("Coincident", 3, 2, 0, 1))
sketch10.addConstraint(Sketcher.Constraint("Vertical", 0))
sketch10.addConstraint(Sketcher.Constraint("Horizontal", 1))
sketch10.addConstraint(Sketcher.Constraint("Vertical", 2))
sketch10.addConstraint(Sketcher.Constraint("Horizontal", 3))
sketch10.addConstraint(Sketcher.Constraint("DistanceX", 1, 2, 1, 1, 18.203213))
sketch10.addConstraint(Sketcher.Constraint("DistanceY", 0, 2, 0, 1, 62.726676))
sketch10.addConstraint(Sketcher.Constraint("DistanceX", -1, 1, 1, 2, 150.82147))
sketch10.addConstraint(Sketcher.Constraint("DistanceY", 0, 2, -1, 1, 37.297433))
pocket5 = body.newObject("PartDesign::Pocket", "Pocket004")
pocket5.Profile = sketch10
pocket5.Length = Q("0.25 in")
pocket5.Reversed = True
pocket5.TaperAngle = -26

sketch11 = body.newObject("Sketcher::SketchObject", "Sketch010")
sketch11.AttachmentSupport = (doc.getObject("XY_Plane"), [""])
sketch11.MapMode = "FlatFace"
sketch11.addGeometry(Part.Circle(V(198.5, 117, 0), V(0, 0, 1), 1.9), False)
sketch11.addGeometry(Part.Circle(V(198.5, -128.6, 0), V(0, 0, 1), 1.9), False)
sketch11.addConstraint(Sketcher.Constraint("Equal", 0, 1))
sketch11.addConstraint(Sketcher.Constraint("Vertical", 0, 3, 1, 3))
sketch11.addConstraint(Sketcher.Constraint("Diameter", 0, Q("0.15 in")))
sketch11.addConstraint(Sketcher.Constraint("DistanceY", -1, 1, 0, 3, 117.007579))
sketch11.addConstraint(Sketcher.Constraint("DistanceY", 1, 3, -1, 1, 128.598952))
sketch11.addConstraint(Sketcher.Constraint("DistanceX", -1, 1, 0, 3, 198.520756))
pocket6 = body.newObject("PartDesign::Pocket", "Pocket005")
pocket6.Profile = sketch11
pocket6.Type = "ThroughAll"
pocket6.Reversed = True

sketch12 = body.newObject("Sketcher::SketchObject", "Sketch011")
sketch12.AttachmentSupport = (doc.getObject("XY_Plane"), [""])
sketch12.MapMode = "FlatFace"
sketch12.AttachmentOffset = App.Placement(V(0, 0, 2.539746), App.Rotation())
sketch12.addGeometry(Part.LineSegment(V(168, 25, 0), V(168, -37, 0)), False)
sketch12.addGeometry(Part.LineSegment(V(168, -37, 0), V(152, -37, 0)), False)
sketch12.addGeometry(Part.LineSegment(V(152, -37, 0), V(152, 25, 0)), False)
sketch12.addGeometry(Part.LineSegment(V(152, 25, 0), V(168, 25, 0)), False)
sketch12.addConstraint(Sketcher.Constraint("Coincident", 0, 2, 1, 1))
sketch12.addConstraint(Sketcher.Constraint("Coincident", 1, 2, 2, 1))
sketch12.addConstraint(Sketcher.Constraint("Coincident", 2, 2, 3, 1))
sketch12.addConstraint(Sketcher.Constraint("Coincident", 3, 2, 0, 1))
sketch12.addConstraint(Sketcher.Constraint("Vertical", 0))
sketch12.addConstraint(Sketcher.Constraint("Horizontal", 1))
sketch12.addConstraint(Sketcher.Constraint("Vertical", 2))
sketch12.addConstraint(Sketcher.Constraint("Horizontal", 3))
sketch12.addConstraint(Sketcher.Constraint("DistanceY", 0, 2, 0, 1, 62.24202))
sketch12.addConstraint(Sketcher.Constraint("DistanceX", -1, 1, 1, 2, 151.980002))
sketch12.addConstraint(Sketcher.Constraint("DistanceY", -1, 1, 2, 2, 25.223499))
sketch12.addConstraint(Sketcher.Constraint("DistanceX", 1, 2, 1, 1, 16.196067))
pad6 = body.newObject("PartDesign::Pad", "Pad005")
pad6.Profile = sketch12
pad6.Length = Q("0.15 in")

doc.recompute()
